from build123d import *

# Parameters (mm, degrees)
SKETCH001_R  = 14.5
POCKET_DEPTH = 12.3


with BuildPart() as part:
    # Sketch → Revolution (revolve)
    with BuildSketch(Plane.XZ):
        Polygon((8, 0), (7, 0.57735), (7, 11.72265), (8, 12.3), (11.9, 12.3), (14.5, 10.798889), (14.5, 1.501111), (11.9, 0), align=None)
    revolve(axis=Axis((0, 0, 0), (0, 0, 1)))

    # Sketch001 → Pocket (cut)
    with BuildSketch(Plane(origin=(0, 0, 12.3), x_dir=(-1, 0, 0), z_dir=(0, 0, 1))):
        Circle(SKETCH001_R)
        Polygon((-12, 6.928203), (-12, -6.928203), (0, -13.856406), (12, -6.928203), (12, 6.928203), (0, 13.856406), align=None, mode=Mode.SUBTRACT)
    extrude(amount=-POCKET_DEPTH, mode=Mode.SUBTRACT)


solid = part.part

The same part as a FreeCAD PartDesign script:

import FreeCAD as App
import Part
import Sketcher
from FreeCAD import Vector
Q = App.Units.Quantity

doc = App.newDocument("Part")
body = doc.addObject("PartDesign::Body", "Body")

# Sketch on XZ plane
sketch1 = doc.addObject("Sketcher::SketchObject", "Sketch")
body.addObject(sketch1)
sketch1.AttachmentSupport = (doc.XZ_Plane, [""])
sketch1.MapMode = "FlatFace"
sketch1.addGeometry([
    Part.LineSegment(Vector(7, 0.6, 0), Vector(8, 0, 0)),  # 0
    Part.LineSegment(Vector(8, 0, 0), Vector(11.9, 0, 0)),  # 1
    Part.LineSegment(Vector(11.9, 0, 0), Vector(14.5, 1.5, 0)),  # 2
    Part.LineSegment(Vector(14.5, 1.5, 0), Vector(14.5, 10.8, 0)),  # 3
    Part.LineSegment(Vector(14.5, 10.8, 0), Vector(11.9, 12.3, 0)),  # 4
    Part.LineSegment(Vector(11.9, 12.3, 0), Vector(8, 12.3, 0)),  # 5
    Part.LineSegment(Vector(8, 12.3, 0), Vector(7, 11.7, 0)),  # 6
    Part.LineSegment(Vector(7, 11.7, 0), Vector(7, 0.6, 0)),  # 7
], False)
sketch1.addConstraint([
    Sketcher.Constraint("Coincident", 0, 2, 1, 1),
    Sketcher.Constraint("Coincident", 1, 2, 2, 1),
    Sketcher.Constraint("Coincident", 2, 2, 3, 1),
    Sketcher.Constraint("Coincident", 3, 2, 4, 1),
    Sketcher.Constraint("Coincident", 4, 2, 5, 1),
    Sketcher.Constraint("Coincident", 5, 2, 6, 1),
    Sketcher.Constraint("Coincident", 6, 2, 7, 1),
    Sketcher.Constraint("Coincident", 7, 2, 0, 1),
    Sketcher.Constraint("Horizontal", 1),
    Sketcher.Constraint("Vertical", 3),
    Sketcher.Constraint("Horizontal", 5),
    Sketcher.Constraint("Vertical", 7),
    Sketcher.Constraint("PointOnObject", 0, 2, -1),
    Sketcher.Constraint("Parallel", 0, 4),
    Sketcher.Constraint("Parallel", 2, 6),
    Sketcher.Constraint("Vertical", 1, 2, 4, 2),
    Sketcher.Constraint("Vertical", 0, 2, 5, 2),
    Sketcher.Constraint("Equal", 2, 4),
    Sketcher.Constraint("Angle", 0, Q("-29.999988 deg")),
    Sketcher.Constraint("DistanceX", 1, 1, 1, 2, 3.9),
    Sketcher.Constraint("DistanceX", -1, 1, 0, 2, 8.0),
    Sketcher.Constraint("DistanceX", -1, 1, 6, 2, 7.0),
    Sketcher.Constraint("DistanceX", -1, 1, 2, 2, 14.5),
    Sketcher.Constraint("DistanceY", -1, 1, 4, 2, 12.3),
])
revolution = doc.addObject("PartDesign::Revolution", "Revolution")
body.addObject(revolution)
revolution.Profile = sketch1
revolution.ReferenceAxis = (sketch1, ["V_Axis"])
revolution.Angle = 360

# Sketch on XY plane
sketch2 = doc.addObject("Sketcher::SketchObject", "Sketch001")
body.addObject(sketch2)
sketch2.AttachmentSupport = (doc.XY_Plane, [""])
sketch2.MapMode = "FlatFace"
sketch2.AttachmentOffset = App.Placement(Vector(0, 0, 12.3), App.Rotation())
sketch2.addGeometry([
    Part.Circle(Vector(0, 0, 0), Vector(0, 0, 1), 14),  # 0
    Part.LineSegment(Vector(12, 7, 0), Vector(12, -7, 0)),  # 1
    Part.LineSegment(Vector(12, -7, 0), Vector(0, -14, 0)),  # 2
    Part.LineSegment(Vector(0, -14, 0), Vector(-12, -7, 0)),  # 3
    Part.LineSegment(Vector(-12, -7, 0), Vector(-12, 7, 0)),  # 4
    Part.LineSegment(Vector(-12, 7, 0), Vector(0, 14, 0)),  # 5
    Part.LineSegment(Vector(0, 14, 0), Vector(12, 7, 0)),  # 6
], False)
sketch2.addConstraint([
    Sketcher.Constraint("Coincident", 1, 2, 2, 1),
    Sketcher.Constraint("Coincident", 2, 2, 3, 1),
    Sketcher.Constraint("Coincident", 3, 2, 4, 1),
    Sketcher.Constraint("Coincident", 4, 2, 5, 1),
    Sketcher.Constraint("Coincident", 5, 2, 6, 1),
    Sketcher.Constraint("Coincident", 6, 2, 1, 1),
    Sketcher.Constraint("Vertical", 1),
    Sketcher.Constraint("Vertical", 4),
    Sketcher.Constraint("Coincident", 0, 3, -1, 1),
    Sketcher.Constraint("Symmetric", 1, 2, 4, 2, -1, 1),
    Sketcher.Constraint("Symmetric", 2, 2, 5, 2, -1, 1),
    Sketcher.Constraint("PointOnObject", 2, 2, -2),
    Sketcher.Constraint("Parallel", 3, 6),
    Sketcher.Constraint("Horizontal", 1, 2, 3, 2),
    Sketcher.Constraint("Diameter", 0, 29.0),
    Sketcher.Constraint("Angle", 2, Q("-150.000001 deg")),
    Sketcher.Constraint("DistanceX", -1, 1, 1, 2, 12.0),
    Sketcher.Constraint("DistanceY", 1, 2, 1, 1, 13.856406),
])
pocket1 = doc.addObject("PartDesign::Pocket", "Pocket")
body.addObject(pocket1)
pocket1.Profile = sketch2
pocket1.Length = 12.3

doc.recompute()
